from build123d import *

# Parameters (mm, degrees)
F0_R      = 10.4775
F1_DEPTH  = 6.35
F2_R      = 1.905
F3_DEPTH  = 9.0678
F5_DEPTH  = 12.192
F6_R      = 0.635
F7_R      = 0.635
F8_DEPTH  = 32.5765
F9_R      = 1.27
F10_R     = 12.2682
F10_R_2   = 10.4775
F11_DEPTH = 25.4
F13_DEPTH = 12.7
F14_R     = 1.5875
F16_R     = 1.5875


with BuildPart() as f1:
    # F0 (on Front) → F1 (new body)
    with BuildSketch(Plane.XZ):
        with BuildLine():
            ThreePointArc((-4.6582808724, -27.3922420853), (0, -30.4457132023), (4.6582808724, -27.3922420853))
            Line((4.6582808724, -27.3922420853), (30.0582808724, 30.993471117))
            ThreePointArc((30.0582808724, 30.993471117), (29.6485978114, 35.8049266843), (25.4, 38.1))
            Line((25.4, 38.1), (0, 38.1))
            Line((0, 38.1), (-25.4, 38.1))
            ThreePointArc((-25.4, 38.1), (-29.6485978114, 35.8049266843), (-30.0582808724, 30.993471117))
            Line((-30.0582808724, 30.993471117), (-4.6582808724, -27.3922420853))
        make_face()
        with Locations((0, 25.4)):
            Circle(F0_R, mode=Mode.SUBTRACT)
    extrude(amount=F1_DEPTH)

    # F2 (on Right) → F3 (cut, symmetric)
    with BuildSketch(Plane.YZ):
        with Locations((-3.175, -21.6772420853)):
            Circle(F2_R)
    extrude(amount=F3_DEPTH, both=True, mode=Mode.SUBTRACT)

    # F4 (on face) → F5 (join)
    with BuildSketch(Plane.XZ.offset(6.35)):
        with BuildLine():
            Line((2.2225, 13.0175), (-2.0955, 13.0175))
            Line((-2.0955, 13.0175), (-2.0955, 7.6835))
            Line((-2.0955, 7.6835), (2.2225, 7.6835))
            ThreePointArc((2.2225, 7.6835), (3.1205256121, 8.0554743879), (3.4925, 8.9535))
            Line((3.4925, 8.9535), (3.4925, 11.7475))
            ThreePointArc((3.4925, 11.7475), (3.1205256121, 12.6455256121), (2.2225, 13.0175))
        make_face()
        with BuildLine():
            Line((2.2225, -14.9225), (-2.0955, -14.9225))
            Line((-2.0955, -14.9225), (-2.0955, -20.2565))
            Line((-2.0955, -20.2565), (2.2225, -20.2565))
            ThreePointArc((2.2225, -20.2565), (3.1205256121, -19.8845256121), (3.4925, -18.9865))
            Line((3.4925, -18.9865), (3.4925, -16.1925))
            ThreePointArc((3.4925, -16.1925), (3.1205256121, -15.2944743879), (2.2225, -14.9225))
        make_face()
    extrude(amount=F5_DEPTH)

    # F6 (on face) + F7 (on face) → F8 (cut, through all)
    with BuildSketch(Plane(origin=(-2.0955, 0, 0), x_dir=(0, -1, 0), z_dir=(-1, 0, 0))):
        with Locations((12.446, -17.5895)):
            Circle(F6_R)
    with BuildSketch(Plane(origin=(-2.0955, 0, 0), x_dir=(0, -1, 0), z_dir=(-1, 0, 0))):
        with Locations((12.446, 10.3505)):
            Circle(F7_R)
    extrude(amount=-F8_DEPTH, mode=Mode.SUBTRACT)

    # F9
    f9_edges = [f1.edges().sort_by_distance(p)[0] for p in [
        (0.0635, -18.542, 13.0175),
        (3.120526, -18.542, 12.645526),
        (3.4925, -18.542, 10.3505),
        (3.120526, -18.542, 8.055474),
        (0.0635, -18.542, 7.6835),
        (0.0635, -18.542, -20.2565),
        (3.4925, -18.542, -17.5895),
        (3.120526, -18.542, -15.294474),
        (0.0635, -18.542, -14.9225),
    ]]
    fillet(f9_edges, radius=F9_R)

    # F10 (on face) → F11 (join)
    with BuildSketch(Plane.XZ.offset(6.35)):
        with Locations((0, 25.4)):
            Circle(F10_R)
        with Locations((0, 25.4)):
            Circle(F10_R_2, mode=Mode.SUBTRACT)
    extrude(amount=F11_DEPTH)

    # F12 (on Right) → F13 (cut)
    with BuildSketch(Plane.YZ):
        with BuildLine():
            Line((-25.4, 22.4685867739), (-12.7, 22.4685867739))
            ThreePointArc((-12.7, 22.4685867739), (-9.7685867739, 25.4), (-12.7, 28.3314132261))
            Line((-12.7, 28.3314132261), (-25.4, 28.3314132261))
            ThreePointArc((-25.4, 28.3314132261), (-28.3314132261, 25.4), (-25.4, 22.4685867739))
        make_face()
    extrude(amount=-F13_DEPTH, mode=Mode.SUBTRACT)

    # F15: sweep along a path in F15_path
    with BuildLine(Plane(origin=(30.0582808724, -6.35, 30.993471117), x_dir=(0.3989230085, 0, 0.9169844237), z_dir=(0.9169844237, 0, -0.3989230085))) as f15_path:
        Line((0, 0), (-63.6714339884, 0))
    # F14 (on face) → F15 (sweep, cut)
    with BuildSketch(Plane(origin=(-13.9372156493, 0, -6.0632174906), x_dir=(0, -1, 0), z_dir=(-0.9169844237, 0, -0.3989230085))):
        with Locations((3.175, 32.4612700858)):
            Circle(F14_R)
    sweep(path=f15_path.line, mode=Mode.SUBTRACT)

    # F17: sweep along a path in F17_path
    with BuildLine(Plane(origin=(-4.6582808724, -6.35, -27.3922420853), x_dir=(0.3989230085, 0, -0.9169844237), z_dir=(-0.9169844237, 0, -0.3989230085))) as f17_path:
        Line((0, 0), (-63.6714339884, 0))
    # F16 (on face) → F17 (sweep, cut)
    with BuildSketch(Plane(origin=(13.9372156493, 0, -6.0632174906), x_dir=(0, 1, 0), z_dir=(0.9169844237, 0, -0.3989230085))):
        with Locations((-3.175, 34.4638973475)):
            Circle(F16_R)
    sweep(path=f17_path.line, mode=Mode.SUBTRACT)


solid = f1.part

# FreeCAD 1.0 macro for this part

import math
import FreeCAD as App
import Part
import Sketcher
from FreeCAD import Vector
Q = App.Units.Quantity


def edges_at(feature, points):
    """Names of the edges that pass closest to the given points."""
    edges = feature.Shape.Edges
    near = lambda p: min(range(len(edges)), key=lambda i: edges[i].distToShape(Part.Vertex(*p))[0])
    return sorted({f"Edge{near(p) + 1}" for p in points})

doc = App.newDocument("Part")
params = doc.addObject("Spreadsheet::Sheet", "Params")
for row, (alias, value) in enumerate([
    ("sketch1_radius", "0.2 in"),
    ("sketch1_width", "2 in"),
    ("sketch1_diameter", "0.825 in"),
    ("pad1_length", "0.25 in"),
    ("sketch2_diameter", "0.15 in"),
    ("pocket1_length", "0.714 in"),
    ("sketch3_radius", "0.05 in"),
    ("sketch3_width", "0.17 in"),
    ("sketch3_height", "0.21 in"),
    ("pad2_length", "0.48 in"),
    ("sketch4_diameter", "0.05 in"),
    ("fillet_radius", "0.05 in"),
    ("sketch5_diameter", "0.966 in"),
    ("sketch5_diameter2", "0.825 in"),
    ("pad3_length", "1 in"),
    ("sketch6_width", "0.5 in"),
    ("pocket3_length", "0.5 in"),
    ("sketch7_diameter", "0.125 in"),
    ("sketch9_diameter", "0.125 in"),
], start=1):
    params.set(f"A{row}", alias)
    params.set(f"B{row}", "=" + value)
    params.setAlias(f"B{row}", alias)

body = doc.addObject("PartDesign::Body", "Body")

# Sketch on XZ plane
sketch1 = body.newObject("Sketcher::SketchObject", "Sketch")
sketch1.AttachmentSupport = (doc.getObject("XZ_Plane"), [""])
sketch1.MapMode = "FlatFace"
sketch1.addGeometry([
    Part.ArcOfCircle(Part.Circle(Vector(0, -25, 0), Vector(0, 0, 1), 5), math.radians(-156), math.radians(-24)),  # 0
    Part.LineSegment(Vector(5, -27, 0), Vector(30, 31, 0)),  # 1
    Part.ArcOfCircle(Part.Circle(Vector(25, 33, 0), Vector(0, 0, 1), 5), math.radians(-24), math.radians(90)),  # 2
    Part.LineSegment(Vector(25, 38, 0), Vector(-25, 38, 0)),  # 3
    Part.ArcOfCircle(Part.Circle(Vector(-25, 33, 0), Vector(0, 0, 1), 5), math.radians(90), math.radians(204)),  # 4
    Part.LineSegment(Vector(-30, 31, 0), Vector(-5, -27, 0)),  # 5
    Part.Circle(Vector(0, 25, 0), Vector(0, 0, 1), 10),  # 6
], False)
sketch1.addConstraint([
    Sketcher.Constraint("Tangent", 0, 2, 1, 1),
    Sketcher.Constraint("Tangent", 1, 2, 2, 1),
    Sketcher.Constraint("Tangent", 2, 2, 3, 1),
    Sketcher.Constraint("Tangent", 3, 2, 4, 1),
    Sketcher.Constraint("Tangent", 4, 2, 5, 1),
    Sketcher.Constraint("Tangent", 5, 2, 0, 1),
    Sketcher.Constraint("Horizontal", 3),
    Sketcher.Constraint("Equal", 0, 2),
    Sketcher.Constraint("Equal", 2, 4),
    Sketcher.Constraint("Symmetric", 1, 2, 4, 2, -2),
    Sketcher.Constraint("PointOnObject", 6, 3, -2),
    Sketcher.Constraint("Radius", 0, Q("0.2 in")),
    Sketcher.Constraint("DistanceX", 3, 2, 3, 1, Q("2 in")),
    Sketcher.Constraint("Diameter", 6, Q("0.825 in")),
    Sketcher.Constraint("DistanceY", -1, 1, 6, 3, Q("1 in")),
    Sketcher.Constraint("DistanceY", -1, 1, 2, 3, Q("1.3 in")),
    Sketcher.Constraint("DistanceX", -1, 1, 0, 2, Q("4.658281 mm")),
])
sketch1.setExpression("Constraints[11]", "Params.sketch1_radius")
sketch1.setExpression("Constraints[12]", "Params.sketch1_width")
sketch1.setExpression("Constraints[13]", "Params.sketch1_diameter")
pad1 = body.newObject("PartDesign::Pad", "Pad")
pad1.Profile = sketch1
pad1.setExpression("Length", "Params.pad1_length")

# Sketch on YZ plane
sketch2 = body.newObject("Sketcher::SketchObject", "Sketch001")
sketch2.AttachmentSupport = (doc.getObject("YZ_Plane"), [""])
sketch2.MapMode = "FlatFace"
sketch2.addGeometry(Part.Circle(Vector(-3.2, -21.7, 0), Vector(0, 0, 1), 1.9), False)
sketch2.addConstraint([
    Sketcher.Constraint("Diameter", 0, Q("0.15 in")),
    Sketcher.Constraint("DistanceX", 0, 3, -1, 1, Q("0.125 in")),
    Sketcher.Constraint("DistanceY", 0, 3, -1, 1, Q("21.677242 mm")),
])
sketch2.setExpression("Constraints[0]", "Params.sketch2_diameter")
pocket1 = body.newObject("PartDesign::Pocket", "Pocket")
pocket1.Profile = sketch2
pocket1.setExpression("Length", "Params.pocket1_length")
pocket1.Midplane = True

# Sketch on XZ plane
sketch3 = body.newObject("Sketcher::SketchObject", "Sketch002")
sketch3.AttachmentSupport = (doc.getObject("XZ_Plane"), [""])
sketch3.MapMode = "FlatFace"
sketch3.AttachmentOffset = App.Placement(Vector(0, 0, 0.25 * 25.4), App.Rotation())
sketch3.addGeometry([
    Part.LineSegment(Vector(2.2, 13, 0), Vector(-2.1, 13, 0)),  # 0
    Part.LineSegment(Vector(-2.1, 13, 0), Vector(-2.1, 7.7, 0)),  # 1
    Part.LineSegment(Vector(-2.1, 7.7, 0), Vector(2.2, 7.7, 0)),  # 2
    Part.ArcOfCircle(Part.Circle(Vector(2.2, 9, 0), Vector(0, 0, 1), 1.3), math.radians(-90), math.radians(0)),  # 3
    Part.LineSegment(Vector(3.5, 9, 0), Vector(3.5, 11.7, 0)),  # 4
    Part.ArcOfCircle(Part.Circle(Vector(2.2, 11.7, 0), Vector(0, 0, 1), 1.3), math.radians(0), math.radians(90)),  # 5
    Part.LineSegment(Vector(2.2, -14.9, 0), Vector(-2.1, -14.9, 0)),  # 6
    Part.LineSegment(Vector(-2.1, -14.9, 0), Vector(-2.1, -20.3, 0)),  # 7
    Part.LineSegment(Vector(-2.1, -20.3, 0), Vector(2.2, -20.3, 0)),  # 8
    Part.ArcOfCircle(Part.Circle(Vector(2.2, -19, 0), Vector(0, 0, 1), 1.3), math.radians(-90), math.radians(0)),  # 9
    Part.LineSegment(Vector(3.5, -19, 0), Vector(3.5, -16.2, 0)),  # 10
    Part.ArcOfCircle(Part.Circle(Vector(2.2, -16.2, 0), Vector(0, 0, 1), 1.3), math.radians(0), math.radians(90)),  # 11
], False)
sketch3.addConstraint([
    Sketcher.Constraint("Coincident", 0, 2, 1, 1),
    Sketcher.Constraint("Coincident", 1, 2, 2, 1),
    Sketcher.Constraint("Tangent", 2, 2, 3, 1),
    Sketcher.Constraint("Tangent", 3, 2, 4, 1),
    Sketcher.Constraint("Tangent", 4, 2, 5, 1),
    Sketcher.Constraint("Tangent", 5, 2, 0, 1),
    Sketcher.Constraint("Coincident", 6, 2, 7, 1),
    Sketcher.Constraint("Coincident", 7, 2, 8, 1),
    Sketcher.Constraint("Tangent", 8, 2, 9, 1),
    Sketcher.Constraint("Tangent", 9, 2, 10, 1),
    Sketcher.Constraint("Tangent", 10, 2, 11, 1),
    Sketcher.Constraint("Tangent", 11, 2, 6, 1),
    Sketcher.Constraint("Horizontal", 0),
    Sketcher.Constraint("Vertical", 1),
    Sketcher.Constraint("Horizontal", 2),
    Sketcher.Constraint("Vertical", 4),
    Sketcher.Constraint("Horizontal", 6),
    Sketcher.Constraint("Vertical", 7),
    Sketcher.Constraint("Horizontal", 8),
    Sketcher.Constraint("Vertical", 10),
    Sketcher.Constraint("Equal", 3, 5),
    Sketcher.Constraint("Equal", 5, 9),
    Sketcher.Constraint("Equal", 9, 11),
    Sketcher.Constraint("Vertical", 5, 3, 9, 3),
    Sketcher.Constraint("Vertical", 1, 2, 6, 2),
    Sketcher.Constraint("Equal", 1, 7),
    Sketcher.Constraint("Radius", 3, Q("0.05 in")),
    Sketcher.Constraint("DistanceX", 0, 2, 0, 1, Q("0.17 in")),
    Sketcher.Constraint("DistanceY", 1, 2, 1, 1, Q("0.21 in")),
    Sketcher.Constraint("DistanceY", 9, 3, 3, 3, Q("1.1 in")),
    Sketcher.Constraint("DistanceX", -1, 1, 3, 3, Q("0.0875 in")),
    Sketcher.Constraint("DistanceY", -1, 1, 3, 3, Q("0.3525 in")),
])
sketch3.setExpression("Constraints[26]", "Params.sketch3_radius")
sketch3.setExpression("Constraints[27]", "Params.sketch3_width")
sketch3.setExpression("Constraints[28]", "Params.sketch3_height")
pad2 = body.newObject("PartDesign::Pad", "Pad001")
pad2.Profile = sketch3
pad2.setExpression("Length", "Params.pad2_length")

# Sketch on YZ plane
sketch4 = body.newObject("Sketcher::SketchObject", "Sketch003")
sketch4.AttachmentSupport = (doc.getObject("YZ_Plane"), [""])
sketch4.MapMode = "FlatFace"
sketch4.AttachmentOffset = App.Placement(Vector(0, 0, -0.0825 * 25.4), App.Rotation())
sketch4.addGeometry([
    Part.Circle(Vector(-12.4, -17.6, 0), Vector(0, 0, 1), 0.6),
    Part.Circle(Vector(-12.4, 10.4, 0), Vector(0, 0, 1), 0.6),
], False)
sketch4.addConstraint([
    Sketcher.Constraint("Equal", 0, 1),
    Sketcher.Constraint("Vertical", 0, 3, 1, 3),
    Sketcher.Constraint("Diameter", 0, Q("0.05 in")),
    Sketcher.Constraint("DistanceY", 0, 3, 1, 3, Q("1.1 in")),
    Sketcher.Constraint("DistanceX", 0, 3, -1, 1, Q("0.49 in")),
    Sketcher.Constraint("DistanceY", 0, 3, -1, 1, Q("0.6925 in")),
])
sketch4.setExpression("Constraints[2]", "Params.sketch4_diameter")
pocket2 = body.newObject("PartDesign::Pocket", "Pocket001")
pocket2.Profile = sketch4
pocket2.Type = "ThroughAll"
pocket2.Reversed = True
doc.recompute()

fillet = body.newObject("PartDesign::Fillet", "Fillet")
fillet.Base = (pocket2, edges_at(pocket2, [
    (0.064, -18.542, 13.018),
    (3.121, -18.542, 12.646),
    (3.493, -18.542, 10.351),
    (3.121, -18.542, 8.055),
    (0.064, -18.542, 7.684),
    (0.064, -18.542, -20.256),
    (3.493, -18.542, -17.59),
    (3.121, -18.542, -15.294),
    (0.064, -18.542, -14.922),
]))
fillet.setExpression("Radius", "Params.fillet_radius")

# Sketch on XZ plane
sketch5 = body.newObject("Sketcher::SketchObject", "Sketch004")
sketch5.AttachmentSupport = (doc.getObject("XZ_Plane"), [""])
sketch5.MapMode = "FlatFace"
sketch5.AttachmentOffset = App.Placement(Vector(0, 0, 0.25 * 25.4), App.Rotation())
sketch5.addGeometry([
    Part.Circle(Vector(0, 25, 0), Vector(0, 0, 1), 12),
    Part.Circle(Vector(0, 25, 0), Vector(0, 0, 1), 10),
], False)
sketch5.addConstraint([
    Sketcher.Constraint("Coincident", 1, 3, 0, 3),
    Sketcher.Constraint("PointOnObject", 0, 3, -2),
    Sketcher.Constraint("Diameter", 0, Q("0.966 in")),
    Sketcher.Constraint("Diameter", 1, Q("0.825 in")),
    Sketcher.Constraint("DistanceY", -1, 1, 0, 3, Q("1 in")),
])
sketch5.setExpression("Constraints[2]", "Params.sketch5_diameter")
sketch5.setExpression("Constraints[3]", "Params.sketch5_diameter2")
pad3 = body.newObject("PartDesign::Pad", "Pad002")
pad3.Profile = sketch5
pad3.setExpression("Length", "Params.pad3_length")

# Sketch on YZ plane
sketch6 = body.newObject("Sketcher::SketchObject", "Sketch005")
sketch6.AttachmentSupport = (doc.getObject("YZ_Plane"), [""])
sketch6.MapMode = "FlatFace"
sketch6.addGeometry([
    Part.LineSegment(Vector(-25.4, 22.5, 0), Vector(-12.7, 22.5, 0)),
    Part.ArcOfCircle(Part.Circle(Vector(-12.7, 25.4, 0), Vector(0, 0, 1), 2.9), math.radians(-90), math.radians(90)),
    Part.LineSegment(Vector(-12.7, 28.3, 0), Vector(-25.4, 28.3, 0)),
    Part.ArcOfCircle(Part.Circle(Vector(-25.4, 25.4, 0), Vector(0, 0, 1), 2.9), math.radians(90), math.radians(270)),
], False)
sketch6.addConstraint([
    Sketcher.Constraint("Tangent", 0, 2, 1, 1),
    Sketcher.Constraint("Tangent", 1, 2, 2, 1),
    Sketcher.Constraint("Tangent", 2, 2, 3, 1),
    Sketcher.Constraint("Tangent", 3, 2, 0, 1),
    Sketcher.Constraint("Horizontal", 0),
    Sketcher.Constraint("Horizontal", 2),
    Sketcher.Constraint("DistanceX", 0, 1, 0, 2, Q("0.5 in")),
    Sketcher.Constraint("DistanceY", -1, 1, 1, 3, Q("1 in")),
    Sketcher.Constraint("DistanceX", 3, 3, -1, 1, Q("1 in")),
    Sketcher.Constraint("Radius", 1, Q("2.931413 mm")),
])
sketch6.setExpression("Constraints[6]", "Params.sketch6_width")
pocket3 = body.newObject("PartDesign::Pocket", "Pocket002")
pocket3.Profile = sketch6
pocket3.setExpression("Length", "Params.pocket3_length")

# Sketch on an angled plane
sketch7 = body.newObject("Sketcher::SketchObject", "Sketch006")
sketch7.Placement = App.Placement(Vector(-13.937216, 0, -6.063217), App.Rotation(Vector(0, -1, 0), Vector(-0.398923008, 0, 0.916984424), Vector(-0.916984424, 0, -0.398923008), "ZXY"))
sketch7.addGeometry(Part.Circle(Vector(3.2, 32.5, 0), Vector(0, 0, 1), 1.6), False)
sketch7.addConstraint([
    Sketcher.Constraint("Diameter", 0, Q("0.125 in")),
    Sketcher.Constraint("DistanceX", -1, 1, 0, 3, Q("0.125 in")),
    Sketcher.Constraint("DistanceY", -1, 1, 0, 3, Q("32.46127 mm")),
])
sketch7.setExpression("Constraints[0]", "Params.sketch7_diameter")

# Sketch on an angled plane
sketch8 = body.newObject("Sketcher::SketchObject", "Sketch007")
sketch8.Placement = App.Placement(Vector(13.937216, 0, -6.063217), App.Rotation(Vector(-0.398923008, 0, -0.916984424), Vector(0, 1, 0), Vector(0.916984424, 0, -0.398923008), "ZXY"))
sketch8.addGeometry(Part.LineSegment(Vector(-40, -6, 0), Vector(23, -6, 0)), False)
sketch8.addConstraint([
    Sketcher.Constraint("Horizontal", 0),
    Sketcher.Constraint("DistanceY", 0, 1, -1, 1, Q("0.25 in")),
    Sketcher.Constraint("DistanceX", 0, 1, 0, 2, Q("63.671434 mm")),
    Sketcher.Constraint("DistanceX", 0, 1, -1, 1, Q("40.41147 mm")),
])
doc.recompute()

subtractivepipe = body.newObject("PartDesign::SubtractivePipe", "SubtractivePipe")
subtractivepipe.Profile = sketch7
subtractivepipe.Spine = (sketch8, ["Edge1"])

# Sketch on an angled plane
sketch9 = body.newObject("Sketcher::SketchObject", "Sketch008")
sketch9.Placement = App.Placement(Vector(13.937216, 0, -6.063217), App.Rotation(Vector(0, 1, 0), Vector(0.398923008, 0, 0.916984424), Vector(0.916984424, 0, -0.398923008), "ZXY"))
sketch9.addGeometry(Part.Circle(Vector(-3.2, 34.5, 0), Vector(0, 0, 1), 1.6), False)
sketch9.addConstraint([
    Sketcher.Constraint("Diameter", 0, Q("0.125 in")),
    Sketcher.Constraint("DistanceX", 0, 3, -1, 1, Q("0.125 in")),
    Sketcher.Constraint("DistanceY", -1, 1, 0, 3, Q("34.463897 mm")),
])
sketch9.setExpression("Constraints[0]", "Params.sketch9_diameter")

# Sketch on an angled plane
sketch10 = body.newObject("Sketcher::SketchObject", "Sketch009")
sketch10.Placement = App.Placement(Vector(-13.937216, 0, -6.063217), App.Rotation(Vector(-0.398923008, 0, 0.916984424), Vector(0, 1, 0), Vector(-0.916984424, 0, -0.398923008), "ZXY"))
sketch10.addGeometry(Part.LineSegment(Vector(-23, -6, 0), Vector(40, -6, 0)), False)
sketch10.addConstraint([
    Sketcher.Constraint("Horizontal", 0),
    Sketcher.Constraint("DistanceY", 0, 1, -1, 1, Q("0.25 in")),
    Sketcher.Constraint("DistanceX", 0, 1, 0, 2, Q("63.671434 mm")),
    Sketcher.Constraint("DistanceX", -1, 1, 0, 2, Q("40.41147 mm")),
])
doc.recompute()

subtractivepipe2 = body.newObject("PartDesign::SubtractivePipe", "SubtractivePipe001")
subtractivepipe2.Profile = sketch9
subtractivepipe2.Spine = (sketch10, ["Edge1"])

doc.recompute()
